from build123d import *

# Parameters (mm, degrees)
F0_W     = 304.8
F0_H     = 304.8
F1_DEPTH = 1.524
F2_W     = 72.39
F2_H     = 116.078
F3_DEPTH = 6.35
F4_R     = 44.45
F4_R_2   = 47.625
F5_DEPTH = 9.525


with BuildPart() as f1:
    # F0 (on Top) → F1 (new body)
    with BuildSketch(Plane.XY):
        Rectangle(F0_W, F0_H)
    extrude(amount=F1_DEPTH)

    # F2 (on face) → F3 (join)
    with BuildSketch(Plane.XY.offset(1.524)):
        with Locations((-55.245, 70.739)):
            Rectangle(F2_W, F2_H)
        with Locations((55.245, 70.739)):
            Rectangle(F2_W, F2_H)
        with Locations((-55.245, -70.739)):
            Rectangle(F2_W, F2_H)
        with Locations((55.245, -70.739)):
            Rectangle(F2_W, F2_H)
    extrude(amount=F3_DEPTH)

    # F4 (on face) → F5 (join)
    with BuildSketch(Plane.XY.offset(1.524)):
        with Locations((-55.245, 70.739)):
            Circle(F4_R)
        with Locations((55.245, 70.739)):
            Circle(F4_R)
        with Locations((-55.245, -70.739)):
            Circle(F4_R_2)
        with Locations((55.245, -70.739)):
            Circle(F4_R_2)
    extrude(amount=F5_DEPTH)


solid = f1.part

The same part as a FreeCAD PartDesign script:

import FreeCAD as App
import Part
import Sketcher
Q = App.Units.Quantity

doc = App.newDocument("Part")
body = doc.addObject("PartDesign::Body", "Body")

# Sketch on XY plane
sketch1 = body.newObject("Sketcher::SketchObject", "Sketch")
sketch1.AttachmentSupport = (doc.getObject("XY_Plane"), [""])
sketch1.MapMode = "FlatFace"
sketch1.addGeometry(Part.LineSegment(App.Vector(-152, 152, 0), App.Vector(-152, -152, 0)), False)
sketch1.addGeometry(Part.LineSegment(App.Vector(-152, -152, 0), App.Vector(152, -152, 0)), False)
sketch1.addGeometry(Part.LineSegment(App.Vector(152, -152, 0), App.Vector(152, 152, 0)), False)
sketch1.addGeometry(Part.LineSegment(App.Vector(152, 152, 0), App.Vector(-152, 152, 0)), False)
sketch1.addConstraint(Sketcher.Constraint("Coincident", 0, 2, 1, 1))
sketch1.addConstraint(Sketcher.Constraint("Coincident", 1, 2, 2, 1))
sketch1.addConstraint(Sketcher.Constraint("Coincident", 2, 2, 3, 1))
sketch1.addConstraint(Sketcher.Constraint("Coincident", 3, 2, 0, 1))
sketch1.addConstraint(Sketcher.Constraint("Vertical", 0))
sketch1.addConstraint(Sketcher.Constraint("Horizontal", 1))
sketch1.addConstraint(Sketcher.Constraint("Vertical", 2))
sketch1.addConstraint(Sketcher.Constraint("Horizontal", 3))
sketch1.addConstraint(Sketcher.Constraint("Symmetric", 0, 2, 2, 2, -1, 1))
sketch1.addConstraint(Sketcher.Constraint("Equal", 3, 0))
sketch1.addConstraint(Sketcher.Constraint("DistanceX", 1, 1, 1, 2, Q("12 in")))
pad1 = body.newObject("PartDesign::Pad", "Pad")
pad1.Profile = sketch1
pad1.Length = Q("0.06 in")

# Sketch on XY plane
sketch2 = body.newObject("Sketcher::SketchObject", "Sketch001")
sketch2.AttachmentSupport = (doc.getObject("XY_Plane"), [""])
sketch2.MapMode = "FlatFace"
sketch2.AttachmentOffset = App.Placement(App.Vector(0, 0, 0.06 * 25.4), App.Rotation())
sketch2.addGeometry(Part.LineSegment(App.Vector(-91, 129, 0), App.Vector(-91, 13, 0)), False)
sketch2.addGeometry(Part.LineSegment(App.Vector(-91, 13, 0), App.Vector(-19, 13, 0)), False)
sketch2.addGeometry(Part.LineSegment(App.Vector(-19, 13, 0), App.Vector(-19, 129, 0)), False)
sketch2.addGeometry(Part.LineSegment(App.Vector(-19, 129, 0), App.Vector(-91, 129, 0)), False)
sketch2.addGeometry(Part.LineSegment(App.Vector(19, 129, 0), App.Vector(19, 13, 0)), False)
sketch2.addGeometry(Part.LineSegment(App.Vector(19, 13, 0), App.Vector(91, 13, 0)), False)
sketch2.addGeometry(Part.LineSegment(App.Vector(91, 13, 0), App.Vector(91, 129, 0)), False)
sketch2.addGeometry(Part.LineSegment(App.Vector(91, 129, 0), App.Vector(19, 129, 0)), False)
sketch2.addGeometry(Part.LineSegment(App.Vector(-91, -13, 0), App.Vector(-91, -129, 0)), False)
sketch2.addGeometry(Part.LineSegment(App.Vector(-91, -129, 0), App.Vector(-19, -129, 0)), False)
sketch2.addGeometry(Part.LineSegment(App.Vector(-19, -129, 0), App.Vector(-19, -13, 0)), False)
sketch2.addGeometry(Part.LineSegment(App.Vector(-19, -13, 0), App.Vector(-91, -13, 0)), False)
sketch2.addGeometry(Part.LineSegment(App.Vector(19, -13, 0), App.Vector(19, -129, 0)), False)
sketch2.addGeometry(Part.LineSegment(App.Vector(19, -129, 0), App.Vector(91, -129, 0)), False)
sketch2.addGeometry(Part.LineSegment(App.Vector(91, -129, 0), App.Vector(91, -13, 0)), False)
sketch2.addGeometry(Part.LineSegment(App.Vector(91, -13, 0), App.Vector(19, -13, 0)), False)
sketch2.addConstraint(Sketcher.Constraint("Coincident", 0, 2, 1, 1))
sketch2.addConstraint(Sketcher.Constraint("Coincident", 1, 2, 2, 1))
sketch2.addConstraint(Sketcher.Constraint("Coincident", 2, 2, 3, 1))
sketch2.addConstraint(Sketcher.Constraint("Coincident", 3, 2, 0, 1))
sketch2.addConstraint(Sketcher.Constraint("Coincident", 4, 2, 5, 1))
sketch2.addConstraint(Sketcher.Constraint("Coincident", 5, 2, 6, 1))
sketch2.addConstraint(Sketcher.Constraint("Coincident", 6, 2, 7, 1))
sketch2.addConstraint(Sketcher.Constraint("Coincident", 7, 2, 4, 1))
sketch2.addConstraint(Sketcher.Constraint("Coincident", 8, 2, 9, 1))
sketch2.addConstraint(Sketcher.Constraint("Coincident", 9, 2, 10, 1))
sketch2.addConstraint(Sketcher.Constraint("Coincident", 10, 2, 11, 1))
sketch2.addConstraint(Sketcher.Constraint("Coincident", 11, 2, 8, 1))
sketch2.addConstraint(Sketcher.Constraint("Coincident", 12, 2, 13, 1))
sketch2.addConstraint(Sketcher.Constraint("Coincident", 13, 2, 14, 1))
sketch2.addConstraint(Sketcher.Constraint("Coincident", 14, 2, 15, 1))
sketch2.addConstraint(Sketcher.Constraint("Coincident", 15, 2, 12, 1))
sketch2.addConstraint(Sketcher.Constraint("Vertical", 0))
sketch2.addConstraint(Sketcher.Constraint("Horizontal", 1))
sketch2.addConstraint(Sketcher.Constraint("Vertical", 2))
sketch2.addConstraint(Sketcher.Constraint("Horizontal", 3))
sketch2.addConstraint(Sketcher.Constraint("Vertical", 4))
sketch2.addConstraint(Sketcher.Constraint("Horizontal", 5))
sketch2.addConstraint(Sketcher.Constraint("Vertical", 6))
sketch2.addConstraint(Sketcher.Constraint("Horizontal", 7))
sketch2.addConstraint(Sketcher.Constraint("Vertical", 8))
sketch2.addConstraint(Sketcher.Constraint("Horizontal", 9))
sketch2.addConstraint(Sketcher.Constraint("Vertical", 10))
sketch2.addConstraint(Sketcher.Constraint("Horizontal", 11))
sketch2.addConstraint(Sketcher.Constraint("Vertical", 12))
sketch2.addConstraint(Sketcher.Constraint("Horizontal", 13))
sketch2.addConstraint(Sketcher.Constraint("Vertical", 14))
sketch2.addConstraint(Sketcher.Constraint("Horizontal", 15))
sketch2.addConstraint(Sketcher.Constraint("Symmetric", 6, 2, 8, 2, -1, 1))
sketch2.addConstraint(Sketcher.Constraint("Symmetric", 4, 2, 10, 2, -1, 1))
sketch2.addConstraint(Sketcher.Constraint("Symmetric", 2, 2, 12, 2, -1, 1))
sketch2.addConstraint(Sketcher.Constraint("Symmetric", 0, 2, 14, 2, -1, 1))
sketch2.addConstraint(Sketcher.Constraint("Symmetric", 1, 2, 4, 2, -2))
sketch2.addConstraint(Sketcher.Constraint("Symmetric", 3, 2, 6, 2, -2))
sketch2.addConstraint(Sketcher.Constraint("DistanceY", 10, 2, 1, 2, Q("1 in")))
sketch2.addConstraint(Sketcher.Constraint("DistanceX", 1, 1, 1, 2, Q("2.85 in")))
sketch2.addConstraint(Sketcher.Constraint("DistanceY", 0, 2, 0, 1, Q("4.57 in")))
sketch2.addConstraint(Sketcher.Constraint("DistanceX", 0, 2, -1, 1, Q("3.6 in")))
pad2 = body.newObject("PartDesign::Pad", "Pad001")
pad2.Profile = sketch2
pad2.Length = Q("0.25 in")

# Sketch on XY plane
sketch3 = body.newObject("Sketcher::SketchObject", "Sketch002")
sketch3.AttachmentSupport = (doc.getObject("XY_Plane"), [""])
sketch3.MapMode = "FlatFace"
sketch3.AttachmentOffset = App.Placement(App.Vector(0, 0, 0.06 * 25.4), App.Rotation())
sketch3.addGeometry(Part.Circle(App.Vector(-55, 71, 0), App.Vector(0, 0, 1), 44), False)
sketch3.addGeometry(Part.Circle(App.Vector(55, 71, 0), App.Vector(0, 0, 1), 44), False)
sketch3.addGeometry(Part.Circle(App.Vector(-55, -71, 0), App.Vector(0, 0, 1), 48), False)
sketch3.addGeometry(Part.Circle(App.Vector(55, -71, 0), App.Vector(0, 0, 1), 48), False)
sketch3.addConstraint(Sketcher.Constraint("Equal", 0, 1))
sketch3.addConstraint(Sketcher.Constraint("Equal", 2, 3))
sketch3.addConstraint(Sketcher.Constraint("Symmetric", 1, 3, 2, 3, -1, 1))
sketch3.addConstraint(Sketcher.Constraint("Symmetric", 0, 3, 3, 3, -1, 1))
sketch3.addConstraint(Sketcher.Constraint("Symmetric", 0, 3, 1, 3, -2))
sketch3.addConstraint(Sketcher.Constraint("Diameter", 0, Q("3.5 in")))
sketch3.addConstraint(Sketcher.Constraint("Diameter", 2, Q("3.75 in")))
sketch3.addConstraint(Sketcher.Constraint("DistanceX", 0, 3, 1, 3, Q("4.35 in")))
sketch3.addConstraint(Sketcher.Constraint("DistanceY", 2, 3, 0, 3, Q("5.57 in")))
pad3 = body.newObject("PartDesign::Pad", "Pad002")
pad3.Profile = sketch3
pad3.Length = Q("0.375 in")

doc.recompute()
